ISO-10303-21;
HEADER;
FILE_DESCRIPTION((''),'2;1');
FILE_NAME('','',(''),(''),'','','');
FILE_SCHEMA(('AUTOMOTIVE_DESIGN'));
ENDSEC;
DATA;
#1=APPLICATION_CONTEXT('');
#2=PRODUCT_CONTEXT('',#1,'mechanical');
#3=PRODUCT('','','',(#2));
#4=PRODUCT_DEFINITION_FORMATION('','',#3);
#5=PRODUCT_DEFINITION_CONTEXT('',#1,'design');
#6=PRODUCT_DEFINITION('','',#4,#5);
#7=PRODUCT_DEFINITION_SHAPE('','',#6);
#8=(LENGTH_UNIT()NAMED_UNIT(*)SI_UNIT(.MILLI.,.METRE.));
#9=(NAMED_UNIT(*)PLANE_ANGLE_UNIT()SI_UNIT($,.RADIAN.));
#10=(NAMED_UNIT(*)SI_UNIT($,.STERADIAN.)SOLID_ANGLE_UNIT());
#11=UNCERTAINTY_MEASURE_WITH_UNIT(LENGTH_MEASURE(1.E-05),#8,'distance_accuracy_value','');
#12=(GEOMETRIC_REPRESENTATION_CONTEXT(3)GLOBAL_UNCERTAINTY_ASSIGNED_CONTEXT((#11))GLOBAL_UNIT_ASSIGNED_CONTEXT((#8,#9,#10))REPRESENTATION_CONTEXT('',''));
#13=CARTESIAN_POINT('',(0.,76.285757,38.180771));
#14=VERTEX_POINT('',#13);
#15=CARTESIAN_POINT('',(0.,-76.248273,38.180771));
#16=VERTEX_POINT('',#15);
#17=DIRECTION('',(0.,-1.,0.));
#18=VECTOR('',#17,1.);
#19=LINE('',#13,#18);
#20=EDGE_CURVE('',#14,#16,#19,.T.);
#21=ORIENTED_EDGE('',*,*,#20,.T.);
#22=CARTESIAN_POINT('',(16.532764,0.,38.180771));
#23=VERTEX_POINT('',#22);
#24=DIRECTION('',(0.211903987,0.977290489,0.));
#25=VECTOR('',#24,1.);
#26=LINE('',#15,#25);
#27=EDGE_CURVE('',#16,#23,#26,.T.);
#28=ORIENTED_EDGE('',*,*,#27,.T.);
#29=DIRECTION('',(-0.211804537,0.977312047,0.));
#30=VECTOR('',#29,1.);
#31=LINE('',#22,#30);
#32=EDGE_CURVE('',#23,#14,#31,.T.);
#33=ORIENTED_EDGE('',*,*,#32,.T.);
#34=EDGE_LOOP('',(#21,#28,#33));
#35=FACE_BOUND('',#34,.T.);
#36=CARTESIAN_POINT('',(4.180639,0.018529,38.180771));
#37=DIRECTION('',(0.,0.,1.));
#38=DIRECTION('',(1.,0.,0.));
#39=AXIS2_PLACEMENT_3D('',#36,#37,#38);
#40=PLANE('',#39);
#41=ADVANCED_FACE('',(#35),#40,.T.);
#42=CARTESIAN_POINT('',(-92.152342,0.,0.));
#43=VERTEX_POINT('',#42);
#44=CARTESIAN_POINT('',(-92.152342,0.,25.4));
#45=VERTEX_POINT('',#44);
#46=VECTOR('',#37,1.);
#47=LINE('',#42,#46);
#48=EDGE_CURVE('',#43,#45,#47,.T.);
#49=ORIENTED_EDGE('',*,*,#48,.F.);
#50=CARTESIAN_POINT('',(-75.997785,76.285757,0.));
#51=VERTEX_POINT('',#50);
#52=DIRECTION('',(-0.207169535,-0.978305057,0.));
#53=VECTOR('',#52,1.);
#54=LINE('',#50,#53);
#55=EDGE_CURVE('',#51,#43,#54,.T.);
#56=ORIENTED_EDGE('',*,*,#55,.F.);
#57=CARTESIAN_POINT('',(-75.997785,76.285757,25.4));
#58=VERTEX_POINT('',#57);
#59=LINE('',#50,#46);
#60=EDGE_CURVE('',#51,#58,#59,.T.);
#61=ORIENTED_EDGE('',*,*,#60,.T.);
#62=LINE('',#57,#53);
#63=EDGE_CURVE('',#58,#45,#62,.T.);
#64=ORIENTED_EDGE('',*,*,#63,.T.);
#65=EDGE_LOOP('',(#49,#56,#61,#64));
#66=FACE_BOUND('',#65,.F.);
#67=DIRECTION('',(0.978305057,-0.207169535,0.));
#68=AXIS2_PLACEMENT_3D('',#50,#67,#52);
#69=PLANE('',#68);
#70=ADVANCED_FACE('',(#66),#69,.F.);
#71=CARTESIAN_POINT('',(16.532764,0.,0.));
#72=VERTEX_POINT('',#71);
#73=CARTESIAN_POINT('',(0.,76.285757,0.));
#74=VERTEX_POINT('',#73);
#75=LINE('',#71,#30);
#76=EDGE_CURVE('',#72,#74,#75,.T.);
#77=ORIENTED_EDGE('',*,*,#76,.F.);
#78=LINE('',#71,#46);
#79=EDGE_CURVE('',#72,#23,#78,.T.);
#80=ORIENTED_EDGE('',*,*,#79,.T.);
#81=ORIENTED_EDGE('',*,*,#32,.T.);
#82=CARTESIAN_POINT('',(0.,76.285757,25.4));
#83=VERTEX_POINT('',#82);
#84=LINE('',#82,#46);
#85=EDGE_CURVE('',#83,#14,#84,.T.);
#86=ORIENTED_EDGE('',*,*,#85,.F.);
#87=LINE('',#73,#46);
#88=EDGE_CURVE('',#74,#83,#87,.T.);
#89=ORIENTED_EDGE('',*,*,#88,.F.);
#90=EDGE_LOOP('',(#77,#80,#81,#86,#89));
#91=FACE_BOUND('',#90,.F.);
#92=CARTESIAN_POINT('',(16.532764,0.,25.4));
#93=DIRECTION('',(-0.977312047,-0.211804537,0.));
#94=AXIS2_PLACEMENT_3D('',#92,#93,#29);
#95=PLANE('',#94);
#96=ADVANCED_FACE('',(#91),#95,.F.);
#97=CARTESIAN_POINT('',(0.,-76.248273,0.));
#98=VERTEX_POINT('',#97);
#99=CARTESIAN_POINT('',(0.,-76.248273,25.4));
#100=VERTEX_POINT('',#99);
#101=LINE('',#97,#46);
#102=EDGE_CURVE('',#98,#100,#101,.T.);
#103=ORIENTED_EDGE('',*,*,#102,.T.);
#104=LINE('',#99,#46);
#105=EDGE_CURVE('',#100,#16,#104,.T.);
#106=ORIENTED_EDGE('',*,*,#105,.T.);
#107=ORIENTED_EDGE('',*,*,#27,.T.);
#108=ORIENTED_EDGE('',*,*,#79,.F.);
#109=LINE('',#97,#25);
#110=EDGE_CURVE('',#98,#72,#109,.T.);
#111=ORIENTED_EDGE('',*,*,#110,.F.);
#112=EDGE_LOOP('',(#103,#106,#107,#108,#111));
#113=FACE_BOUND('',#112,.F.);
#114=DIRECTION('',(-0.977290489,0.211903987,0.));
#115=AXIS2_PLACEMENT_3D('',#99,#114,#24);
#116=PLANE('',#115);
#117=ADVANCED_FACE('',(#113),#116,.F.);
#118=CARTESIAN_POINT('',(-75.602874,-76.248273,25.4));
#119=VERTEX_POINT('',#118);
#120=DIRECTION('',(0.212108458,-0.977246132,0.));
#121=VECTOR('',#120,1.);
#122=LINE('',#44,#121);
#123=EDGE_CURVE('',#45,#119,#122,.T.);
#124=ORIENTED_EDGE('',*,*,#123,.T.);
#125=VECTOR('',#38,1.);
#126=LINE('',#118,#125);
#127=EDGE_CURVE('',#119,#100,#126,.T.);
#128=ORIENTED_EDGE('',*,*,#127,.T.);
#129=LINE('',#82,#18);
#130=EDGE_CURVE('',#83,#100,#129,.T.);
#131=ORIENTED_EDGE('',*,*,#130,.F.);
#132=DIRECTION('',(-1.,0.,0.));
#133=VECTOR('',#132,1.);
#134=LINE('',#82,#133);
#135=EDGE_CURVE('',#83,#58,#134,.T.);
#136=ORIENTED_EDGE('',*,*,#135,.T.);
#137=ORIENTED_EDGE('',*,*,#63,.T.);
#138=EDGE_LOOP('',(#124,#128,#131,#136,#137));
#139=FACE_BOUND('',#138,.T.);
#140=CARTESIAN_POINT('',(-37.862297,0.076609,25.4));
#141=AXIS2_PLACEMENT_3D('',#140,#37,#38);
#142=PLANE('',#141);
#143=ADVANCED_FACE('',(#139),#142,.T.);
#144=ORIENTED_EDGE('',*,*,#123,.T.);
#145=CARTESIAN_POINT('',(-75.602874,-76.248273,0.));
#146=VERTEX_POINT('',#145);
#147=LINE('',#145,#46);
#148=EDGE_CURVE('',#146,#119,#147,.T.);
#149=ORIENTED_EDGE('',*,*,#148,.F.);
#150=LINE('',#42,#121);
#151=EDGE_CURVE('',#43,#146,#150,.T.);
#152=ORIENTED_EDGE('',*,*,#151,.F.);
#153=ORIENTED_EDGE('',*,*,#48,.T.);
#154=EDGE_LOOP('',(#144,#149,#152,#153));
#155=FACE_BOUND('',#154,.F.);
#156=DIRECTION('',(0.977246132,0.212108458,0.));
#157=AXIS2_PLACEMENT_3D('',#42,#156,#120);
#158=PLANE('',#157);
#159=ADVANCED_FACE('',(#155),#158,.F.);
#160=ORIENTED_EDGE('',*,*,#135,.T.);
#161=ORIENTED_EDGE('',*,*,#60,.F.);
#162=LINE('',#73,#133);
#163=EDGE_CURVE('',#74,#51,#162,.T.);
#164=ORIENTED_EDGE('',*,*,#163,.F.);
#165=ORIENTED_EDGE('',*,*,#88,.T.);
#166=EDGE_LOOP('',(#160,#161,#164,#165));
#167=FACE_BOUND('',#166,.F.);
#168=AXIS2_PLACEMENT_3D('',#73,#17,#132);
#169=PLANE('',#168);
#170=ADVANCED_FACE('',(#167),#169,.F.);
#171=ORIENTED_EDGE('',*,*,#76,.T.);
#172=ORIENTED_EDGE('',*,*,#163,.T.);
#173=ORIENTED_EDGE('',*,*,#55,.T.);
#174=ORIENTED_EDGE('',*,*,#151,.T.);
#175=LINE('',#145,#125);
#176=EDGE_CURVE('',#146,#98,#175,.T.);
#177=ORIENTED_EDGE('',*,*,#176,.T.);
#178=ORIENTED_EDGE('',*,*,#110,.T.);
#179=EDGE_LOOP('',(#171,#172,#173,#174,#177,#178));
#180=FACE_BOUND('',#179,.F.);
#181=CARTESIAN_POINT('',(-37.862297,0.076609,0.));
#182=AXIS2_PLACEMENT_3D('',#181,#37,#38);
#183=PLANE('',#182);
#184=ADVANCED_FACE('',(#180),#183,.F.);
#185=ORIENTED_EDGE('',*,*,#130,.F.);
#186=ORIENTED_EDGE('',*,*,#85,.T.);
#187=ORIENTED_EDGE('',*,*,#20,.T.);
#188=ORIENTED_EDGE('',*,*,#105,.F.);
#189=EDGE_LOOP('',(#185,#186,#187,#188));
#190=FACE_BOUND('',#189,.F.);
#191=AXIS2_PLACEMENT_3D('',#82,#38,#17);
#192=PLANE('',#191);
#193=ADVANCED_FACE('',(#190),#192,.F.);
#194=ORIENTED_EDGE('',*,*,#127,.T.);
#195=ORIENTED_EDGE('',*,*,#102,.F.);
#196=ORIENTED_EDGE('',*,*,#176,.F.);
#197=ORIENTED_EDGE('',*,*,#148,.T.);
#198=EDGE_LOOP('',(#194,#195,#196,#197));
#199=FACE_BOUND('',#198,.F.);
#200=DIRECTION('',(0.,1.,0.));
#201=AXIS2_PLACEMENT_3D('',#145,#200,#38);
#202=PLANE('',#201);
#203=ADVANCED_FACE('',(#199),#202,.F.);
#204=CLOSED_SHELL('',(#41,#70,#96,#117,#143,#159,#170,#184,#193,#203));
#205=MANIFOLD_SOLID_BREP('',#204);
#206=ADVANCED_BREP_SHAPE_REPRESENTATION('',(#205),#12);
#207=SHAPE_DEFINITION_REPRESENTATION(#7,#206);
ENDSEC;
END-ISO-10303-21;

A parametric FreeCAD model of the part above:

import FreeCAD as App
import Part
import Sketcher

doc = App.newDocument("Part")
params = doc.addObject("Spreadsheet::Sheet", "Params")
for row, (alias, value) in enumerate([
    ("pad1_length", "1 in"),
    ("pad2_length", "12.780771 mm"),
], start=1):
    params.set(f"A{row}", alias)
    params.set(f"B{row}", "=" + value)
    params.setAlias(f"B{row}", alias)

body = doc.addObject("PartDesign::Body", "Body")

# Sketch on XY plane
sketch1 = body.newObject("Sketcher::SketchObject", "Sketch")
sketch1.AttachmentSupport = (doc.getObject("XY_Plane"), [""])
sketch1.MapMode = "FlatFace"
sketch1.addGeometry(Part.LineSegment(App.Vector(16.532764, 0, 0), App.Vector(0, 76.285757, 0)), False)
sketch1.addGeometry(Part.LineSegment(App.Vector(0, 76.285757, 0), App.Vector(-75.997785, 76.285757, 0)), False)
sketch1.addGeometry(Part.LineSegment(App.Vector(-75.997785, 76.285757, 0), App.Vector(-92.152342, 0, 0)), False)
sketch1.addGeometry(Part.LineSegment(App.Vector(-92.152342, 0, 0), App.Vector(-75.602874, -76.248273, 0)), False)
sketch1.addGeometry(Part.LineSegment(App.Vector(-75.602874, -76.248273, 0), App.Vector(0, -76.248273, 0)), False)
sketch1.addGeometry(Part.LineSegment(App.Vector(0, -76.248273, 0), App.Vector(16.532764, 0, 0)), False)
sketch1.addConstraint(Sketcher.Constraint("Coincident", 0, 2, 1, 1))
sketch1.addConstraint(Sketcher.Constraint("Coincident", 1, 2, 2, 1))
sketch1.addConstraint(Sketcher.Constraint("Coincident", 2, 2, 3, 1))
sketch1.addConstraint(Sketcher.Constraint("Coincident", 3, 2, 4, 1))
sketch1.addConstraint(Sketcher.Constraint("Coincident", 4, 2, 5, 1))
sketch1.addConstraint(Sketcher.Constraint("Coincident", 5, 2, 0, 1))
sketch1.addConstraint(Sketcher.Constraint("Horizontal", 1))
sketch1.addConstraint(Sketcher.Constraint("Horizontal", 4))
sketch1.addConstraint(Sketcher.Constraint("PointOnObject", 0, 2, -2))
sketch1.addConstraint(Sketcher.Constraint("PointOnObject", 2, 2, -1))
sketch1.addConstraint(Sketcher.Constraint("PointOnObject", 4, 2, -2))
sketch1.addConstraint(Sketcher.Constraint("PointOnObject", 5, 2, -1))
sketch1.addConstraint(Sketcher.Constraint("Distance", 3, 78.023612))
sketch1.addConstraint(Sketcher.Constraint("Distance", 5, 78.020071))
sketch1.addConstraint(Sketcher.Constraint("DistanceX", 1, 2, 1, 1, 75.997785))
sketch1.addConstraint(Sketcher.Constraint("DistanceX", 4, 1, 4, 2, 75.602874))
sketch1.addConstraint(Sketcher.Constraint("DistanceX", 2, 2, 3, 2, 16.549468))
sketch1.addConstraint(Sketcher.Constraint("DistanceY", 3, 2, 1, 2, 152.53403))
pad1 = body.newObject("PartDesign::Pad", "Pad")
pad1.Profile = sketch1
pad1.setExpression("Length", "Params.pad1_length")

# Sketch on XY plane
sketch2 = body.newObject("Sketcher::SketchObject", "Sketch001")
sketch2.AttachmentSupport = (doc.getObject("XY_Plane"), [""])
sketch2.MapMode = "FlatFace"
sketch2.AttachmentOffset = App.Placement(App.Vector(0, 0, 1 * 25.4), App.Rotation())
sketch2.addGeometry(Part.LineSegment(App.Vector(0, -76.248273, 0), App.Vector(16.532764, 0, 0)), False)
sketch2.addGeometry(Part.LineSegment(App.Vector(16.532764, 0, 0), App.Vector(0, 76.285757, 0)), False)
sketch2.addGeometry(Part.LineSegment(App.Vector(0, 76.285757, 0), App.Vector(0, -76.248273, 0)), False)
sketch2.addConstraint(Sketcher.Constraint("Coincident", 0, 2, 1, 1))
sketch2.addConstraint(Sketcher.Constraint("Coincident", 1, 2, 2, 1))
sketch2.addConstraint(Sketcher.Constraint("Coincident", 2, 2, 0, 1))
sketch2.addConstraint(Sketcher.Constraint("Vertical", 2))
sketch2.addConstraint(Sketcher.Constraint("PointOnObject", 0, 2, -1))
sketch2.addConstraint(Sketcher.Constraint("PointOnObject", 1, 2, -2))
sketch2.addConstraint(Sketcher.Constraint("DistanceY", 2, 2, 2, 1, 152.53403))
sketch2.addConstraint(Sketcher.Constraint("Distance", 0, 78.020071))
sketch2.addConstraint(Sketcher.Constraint("Distance", 1, 78.056704))
pad2 = body.newObject("PartDesign::Pad", "Pad001")
pad2.Profile = sketch2
pad2.setExpression("Length", "Params.pad2_length")

doc.recompute()
